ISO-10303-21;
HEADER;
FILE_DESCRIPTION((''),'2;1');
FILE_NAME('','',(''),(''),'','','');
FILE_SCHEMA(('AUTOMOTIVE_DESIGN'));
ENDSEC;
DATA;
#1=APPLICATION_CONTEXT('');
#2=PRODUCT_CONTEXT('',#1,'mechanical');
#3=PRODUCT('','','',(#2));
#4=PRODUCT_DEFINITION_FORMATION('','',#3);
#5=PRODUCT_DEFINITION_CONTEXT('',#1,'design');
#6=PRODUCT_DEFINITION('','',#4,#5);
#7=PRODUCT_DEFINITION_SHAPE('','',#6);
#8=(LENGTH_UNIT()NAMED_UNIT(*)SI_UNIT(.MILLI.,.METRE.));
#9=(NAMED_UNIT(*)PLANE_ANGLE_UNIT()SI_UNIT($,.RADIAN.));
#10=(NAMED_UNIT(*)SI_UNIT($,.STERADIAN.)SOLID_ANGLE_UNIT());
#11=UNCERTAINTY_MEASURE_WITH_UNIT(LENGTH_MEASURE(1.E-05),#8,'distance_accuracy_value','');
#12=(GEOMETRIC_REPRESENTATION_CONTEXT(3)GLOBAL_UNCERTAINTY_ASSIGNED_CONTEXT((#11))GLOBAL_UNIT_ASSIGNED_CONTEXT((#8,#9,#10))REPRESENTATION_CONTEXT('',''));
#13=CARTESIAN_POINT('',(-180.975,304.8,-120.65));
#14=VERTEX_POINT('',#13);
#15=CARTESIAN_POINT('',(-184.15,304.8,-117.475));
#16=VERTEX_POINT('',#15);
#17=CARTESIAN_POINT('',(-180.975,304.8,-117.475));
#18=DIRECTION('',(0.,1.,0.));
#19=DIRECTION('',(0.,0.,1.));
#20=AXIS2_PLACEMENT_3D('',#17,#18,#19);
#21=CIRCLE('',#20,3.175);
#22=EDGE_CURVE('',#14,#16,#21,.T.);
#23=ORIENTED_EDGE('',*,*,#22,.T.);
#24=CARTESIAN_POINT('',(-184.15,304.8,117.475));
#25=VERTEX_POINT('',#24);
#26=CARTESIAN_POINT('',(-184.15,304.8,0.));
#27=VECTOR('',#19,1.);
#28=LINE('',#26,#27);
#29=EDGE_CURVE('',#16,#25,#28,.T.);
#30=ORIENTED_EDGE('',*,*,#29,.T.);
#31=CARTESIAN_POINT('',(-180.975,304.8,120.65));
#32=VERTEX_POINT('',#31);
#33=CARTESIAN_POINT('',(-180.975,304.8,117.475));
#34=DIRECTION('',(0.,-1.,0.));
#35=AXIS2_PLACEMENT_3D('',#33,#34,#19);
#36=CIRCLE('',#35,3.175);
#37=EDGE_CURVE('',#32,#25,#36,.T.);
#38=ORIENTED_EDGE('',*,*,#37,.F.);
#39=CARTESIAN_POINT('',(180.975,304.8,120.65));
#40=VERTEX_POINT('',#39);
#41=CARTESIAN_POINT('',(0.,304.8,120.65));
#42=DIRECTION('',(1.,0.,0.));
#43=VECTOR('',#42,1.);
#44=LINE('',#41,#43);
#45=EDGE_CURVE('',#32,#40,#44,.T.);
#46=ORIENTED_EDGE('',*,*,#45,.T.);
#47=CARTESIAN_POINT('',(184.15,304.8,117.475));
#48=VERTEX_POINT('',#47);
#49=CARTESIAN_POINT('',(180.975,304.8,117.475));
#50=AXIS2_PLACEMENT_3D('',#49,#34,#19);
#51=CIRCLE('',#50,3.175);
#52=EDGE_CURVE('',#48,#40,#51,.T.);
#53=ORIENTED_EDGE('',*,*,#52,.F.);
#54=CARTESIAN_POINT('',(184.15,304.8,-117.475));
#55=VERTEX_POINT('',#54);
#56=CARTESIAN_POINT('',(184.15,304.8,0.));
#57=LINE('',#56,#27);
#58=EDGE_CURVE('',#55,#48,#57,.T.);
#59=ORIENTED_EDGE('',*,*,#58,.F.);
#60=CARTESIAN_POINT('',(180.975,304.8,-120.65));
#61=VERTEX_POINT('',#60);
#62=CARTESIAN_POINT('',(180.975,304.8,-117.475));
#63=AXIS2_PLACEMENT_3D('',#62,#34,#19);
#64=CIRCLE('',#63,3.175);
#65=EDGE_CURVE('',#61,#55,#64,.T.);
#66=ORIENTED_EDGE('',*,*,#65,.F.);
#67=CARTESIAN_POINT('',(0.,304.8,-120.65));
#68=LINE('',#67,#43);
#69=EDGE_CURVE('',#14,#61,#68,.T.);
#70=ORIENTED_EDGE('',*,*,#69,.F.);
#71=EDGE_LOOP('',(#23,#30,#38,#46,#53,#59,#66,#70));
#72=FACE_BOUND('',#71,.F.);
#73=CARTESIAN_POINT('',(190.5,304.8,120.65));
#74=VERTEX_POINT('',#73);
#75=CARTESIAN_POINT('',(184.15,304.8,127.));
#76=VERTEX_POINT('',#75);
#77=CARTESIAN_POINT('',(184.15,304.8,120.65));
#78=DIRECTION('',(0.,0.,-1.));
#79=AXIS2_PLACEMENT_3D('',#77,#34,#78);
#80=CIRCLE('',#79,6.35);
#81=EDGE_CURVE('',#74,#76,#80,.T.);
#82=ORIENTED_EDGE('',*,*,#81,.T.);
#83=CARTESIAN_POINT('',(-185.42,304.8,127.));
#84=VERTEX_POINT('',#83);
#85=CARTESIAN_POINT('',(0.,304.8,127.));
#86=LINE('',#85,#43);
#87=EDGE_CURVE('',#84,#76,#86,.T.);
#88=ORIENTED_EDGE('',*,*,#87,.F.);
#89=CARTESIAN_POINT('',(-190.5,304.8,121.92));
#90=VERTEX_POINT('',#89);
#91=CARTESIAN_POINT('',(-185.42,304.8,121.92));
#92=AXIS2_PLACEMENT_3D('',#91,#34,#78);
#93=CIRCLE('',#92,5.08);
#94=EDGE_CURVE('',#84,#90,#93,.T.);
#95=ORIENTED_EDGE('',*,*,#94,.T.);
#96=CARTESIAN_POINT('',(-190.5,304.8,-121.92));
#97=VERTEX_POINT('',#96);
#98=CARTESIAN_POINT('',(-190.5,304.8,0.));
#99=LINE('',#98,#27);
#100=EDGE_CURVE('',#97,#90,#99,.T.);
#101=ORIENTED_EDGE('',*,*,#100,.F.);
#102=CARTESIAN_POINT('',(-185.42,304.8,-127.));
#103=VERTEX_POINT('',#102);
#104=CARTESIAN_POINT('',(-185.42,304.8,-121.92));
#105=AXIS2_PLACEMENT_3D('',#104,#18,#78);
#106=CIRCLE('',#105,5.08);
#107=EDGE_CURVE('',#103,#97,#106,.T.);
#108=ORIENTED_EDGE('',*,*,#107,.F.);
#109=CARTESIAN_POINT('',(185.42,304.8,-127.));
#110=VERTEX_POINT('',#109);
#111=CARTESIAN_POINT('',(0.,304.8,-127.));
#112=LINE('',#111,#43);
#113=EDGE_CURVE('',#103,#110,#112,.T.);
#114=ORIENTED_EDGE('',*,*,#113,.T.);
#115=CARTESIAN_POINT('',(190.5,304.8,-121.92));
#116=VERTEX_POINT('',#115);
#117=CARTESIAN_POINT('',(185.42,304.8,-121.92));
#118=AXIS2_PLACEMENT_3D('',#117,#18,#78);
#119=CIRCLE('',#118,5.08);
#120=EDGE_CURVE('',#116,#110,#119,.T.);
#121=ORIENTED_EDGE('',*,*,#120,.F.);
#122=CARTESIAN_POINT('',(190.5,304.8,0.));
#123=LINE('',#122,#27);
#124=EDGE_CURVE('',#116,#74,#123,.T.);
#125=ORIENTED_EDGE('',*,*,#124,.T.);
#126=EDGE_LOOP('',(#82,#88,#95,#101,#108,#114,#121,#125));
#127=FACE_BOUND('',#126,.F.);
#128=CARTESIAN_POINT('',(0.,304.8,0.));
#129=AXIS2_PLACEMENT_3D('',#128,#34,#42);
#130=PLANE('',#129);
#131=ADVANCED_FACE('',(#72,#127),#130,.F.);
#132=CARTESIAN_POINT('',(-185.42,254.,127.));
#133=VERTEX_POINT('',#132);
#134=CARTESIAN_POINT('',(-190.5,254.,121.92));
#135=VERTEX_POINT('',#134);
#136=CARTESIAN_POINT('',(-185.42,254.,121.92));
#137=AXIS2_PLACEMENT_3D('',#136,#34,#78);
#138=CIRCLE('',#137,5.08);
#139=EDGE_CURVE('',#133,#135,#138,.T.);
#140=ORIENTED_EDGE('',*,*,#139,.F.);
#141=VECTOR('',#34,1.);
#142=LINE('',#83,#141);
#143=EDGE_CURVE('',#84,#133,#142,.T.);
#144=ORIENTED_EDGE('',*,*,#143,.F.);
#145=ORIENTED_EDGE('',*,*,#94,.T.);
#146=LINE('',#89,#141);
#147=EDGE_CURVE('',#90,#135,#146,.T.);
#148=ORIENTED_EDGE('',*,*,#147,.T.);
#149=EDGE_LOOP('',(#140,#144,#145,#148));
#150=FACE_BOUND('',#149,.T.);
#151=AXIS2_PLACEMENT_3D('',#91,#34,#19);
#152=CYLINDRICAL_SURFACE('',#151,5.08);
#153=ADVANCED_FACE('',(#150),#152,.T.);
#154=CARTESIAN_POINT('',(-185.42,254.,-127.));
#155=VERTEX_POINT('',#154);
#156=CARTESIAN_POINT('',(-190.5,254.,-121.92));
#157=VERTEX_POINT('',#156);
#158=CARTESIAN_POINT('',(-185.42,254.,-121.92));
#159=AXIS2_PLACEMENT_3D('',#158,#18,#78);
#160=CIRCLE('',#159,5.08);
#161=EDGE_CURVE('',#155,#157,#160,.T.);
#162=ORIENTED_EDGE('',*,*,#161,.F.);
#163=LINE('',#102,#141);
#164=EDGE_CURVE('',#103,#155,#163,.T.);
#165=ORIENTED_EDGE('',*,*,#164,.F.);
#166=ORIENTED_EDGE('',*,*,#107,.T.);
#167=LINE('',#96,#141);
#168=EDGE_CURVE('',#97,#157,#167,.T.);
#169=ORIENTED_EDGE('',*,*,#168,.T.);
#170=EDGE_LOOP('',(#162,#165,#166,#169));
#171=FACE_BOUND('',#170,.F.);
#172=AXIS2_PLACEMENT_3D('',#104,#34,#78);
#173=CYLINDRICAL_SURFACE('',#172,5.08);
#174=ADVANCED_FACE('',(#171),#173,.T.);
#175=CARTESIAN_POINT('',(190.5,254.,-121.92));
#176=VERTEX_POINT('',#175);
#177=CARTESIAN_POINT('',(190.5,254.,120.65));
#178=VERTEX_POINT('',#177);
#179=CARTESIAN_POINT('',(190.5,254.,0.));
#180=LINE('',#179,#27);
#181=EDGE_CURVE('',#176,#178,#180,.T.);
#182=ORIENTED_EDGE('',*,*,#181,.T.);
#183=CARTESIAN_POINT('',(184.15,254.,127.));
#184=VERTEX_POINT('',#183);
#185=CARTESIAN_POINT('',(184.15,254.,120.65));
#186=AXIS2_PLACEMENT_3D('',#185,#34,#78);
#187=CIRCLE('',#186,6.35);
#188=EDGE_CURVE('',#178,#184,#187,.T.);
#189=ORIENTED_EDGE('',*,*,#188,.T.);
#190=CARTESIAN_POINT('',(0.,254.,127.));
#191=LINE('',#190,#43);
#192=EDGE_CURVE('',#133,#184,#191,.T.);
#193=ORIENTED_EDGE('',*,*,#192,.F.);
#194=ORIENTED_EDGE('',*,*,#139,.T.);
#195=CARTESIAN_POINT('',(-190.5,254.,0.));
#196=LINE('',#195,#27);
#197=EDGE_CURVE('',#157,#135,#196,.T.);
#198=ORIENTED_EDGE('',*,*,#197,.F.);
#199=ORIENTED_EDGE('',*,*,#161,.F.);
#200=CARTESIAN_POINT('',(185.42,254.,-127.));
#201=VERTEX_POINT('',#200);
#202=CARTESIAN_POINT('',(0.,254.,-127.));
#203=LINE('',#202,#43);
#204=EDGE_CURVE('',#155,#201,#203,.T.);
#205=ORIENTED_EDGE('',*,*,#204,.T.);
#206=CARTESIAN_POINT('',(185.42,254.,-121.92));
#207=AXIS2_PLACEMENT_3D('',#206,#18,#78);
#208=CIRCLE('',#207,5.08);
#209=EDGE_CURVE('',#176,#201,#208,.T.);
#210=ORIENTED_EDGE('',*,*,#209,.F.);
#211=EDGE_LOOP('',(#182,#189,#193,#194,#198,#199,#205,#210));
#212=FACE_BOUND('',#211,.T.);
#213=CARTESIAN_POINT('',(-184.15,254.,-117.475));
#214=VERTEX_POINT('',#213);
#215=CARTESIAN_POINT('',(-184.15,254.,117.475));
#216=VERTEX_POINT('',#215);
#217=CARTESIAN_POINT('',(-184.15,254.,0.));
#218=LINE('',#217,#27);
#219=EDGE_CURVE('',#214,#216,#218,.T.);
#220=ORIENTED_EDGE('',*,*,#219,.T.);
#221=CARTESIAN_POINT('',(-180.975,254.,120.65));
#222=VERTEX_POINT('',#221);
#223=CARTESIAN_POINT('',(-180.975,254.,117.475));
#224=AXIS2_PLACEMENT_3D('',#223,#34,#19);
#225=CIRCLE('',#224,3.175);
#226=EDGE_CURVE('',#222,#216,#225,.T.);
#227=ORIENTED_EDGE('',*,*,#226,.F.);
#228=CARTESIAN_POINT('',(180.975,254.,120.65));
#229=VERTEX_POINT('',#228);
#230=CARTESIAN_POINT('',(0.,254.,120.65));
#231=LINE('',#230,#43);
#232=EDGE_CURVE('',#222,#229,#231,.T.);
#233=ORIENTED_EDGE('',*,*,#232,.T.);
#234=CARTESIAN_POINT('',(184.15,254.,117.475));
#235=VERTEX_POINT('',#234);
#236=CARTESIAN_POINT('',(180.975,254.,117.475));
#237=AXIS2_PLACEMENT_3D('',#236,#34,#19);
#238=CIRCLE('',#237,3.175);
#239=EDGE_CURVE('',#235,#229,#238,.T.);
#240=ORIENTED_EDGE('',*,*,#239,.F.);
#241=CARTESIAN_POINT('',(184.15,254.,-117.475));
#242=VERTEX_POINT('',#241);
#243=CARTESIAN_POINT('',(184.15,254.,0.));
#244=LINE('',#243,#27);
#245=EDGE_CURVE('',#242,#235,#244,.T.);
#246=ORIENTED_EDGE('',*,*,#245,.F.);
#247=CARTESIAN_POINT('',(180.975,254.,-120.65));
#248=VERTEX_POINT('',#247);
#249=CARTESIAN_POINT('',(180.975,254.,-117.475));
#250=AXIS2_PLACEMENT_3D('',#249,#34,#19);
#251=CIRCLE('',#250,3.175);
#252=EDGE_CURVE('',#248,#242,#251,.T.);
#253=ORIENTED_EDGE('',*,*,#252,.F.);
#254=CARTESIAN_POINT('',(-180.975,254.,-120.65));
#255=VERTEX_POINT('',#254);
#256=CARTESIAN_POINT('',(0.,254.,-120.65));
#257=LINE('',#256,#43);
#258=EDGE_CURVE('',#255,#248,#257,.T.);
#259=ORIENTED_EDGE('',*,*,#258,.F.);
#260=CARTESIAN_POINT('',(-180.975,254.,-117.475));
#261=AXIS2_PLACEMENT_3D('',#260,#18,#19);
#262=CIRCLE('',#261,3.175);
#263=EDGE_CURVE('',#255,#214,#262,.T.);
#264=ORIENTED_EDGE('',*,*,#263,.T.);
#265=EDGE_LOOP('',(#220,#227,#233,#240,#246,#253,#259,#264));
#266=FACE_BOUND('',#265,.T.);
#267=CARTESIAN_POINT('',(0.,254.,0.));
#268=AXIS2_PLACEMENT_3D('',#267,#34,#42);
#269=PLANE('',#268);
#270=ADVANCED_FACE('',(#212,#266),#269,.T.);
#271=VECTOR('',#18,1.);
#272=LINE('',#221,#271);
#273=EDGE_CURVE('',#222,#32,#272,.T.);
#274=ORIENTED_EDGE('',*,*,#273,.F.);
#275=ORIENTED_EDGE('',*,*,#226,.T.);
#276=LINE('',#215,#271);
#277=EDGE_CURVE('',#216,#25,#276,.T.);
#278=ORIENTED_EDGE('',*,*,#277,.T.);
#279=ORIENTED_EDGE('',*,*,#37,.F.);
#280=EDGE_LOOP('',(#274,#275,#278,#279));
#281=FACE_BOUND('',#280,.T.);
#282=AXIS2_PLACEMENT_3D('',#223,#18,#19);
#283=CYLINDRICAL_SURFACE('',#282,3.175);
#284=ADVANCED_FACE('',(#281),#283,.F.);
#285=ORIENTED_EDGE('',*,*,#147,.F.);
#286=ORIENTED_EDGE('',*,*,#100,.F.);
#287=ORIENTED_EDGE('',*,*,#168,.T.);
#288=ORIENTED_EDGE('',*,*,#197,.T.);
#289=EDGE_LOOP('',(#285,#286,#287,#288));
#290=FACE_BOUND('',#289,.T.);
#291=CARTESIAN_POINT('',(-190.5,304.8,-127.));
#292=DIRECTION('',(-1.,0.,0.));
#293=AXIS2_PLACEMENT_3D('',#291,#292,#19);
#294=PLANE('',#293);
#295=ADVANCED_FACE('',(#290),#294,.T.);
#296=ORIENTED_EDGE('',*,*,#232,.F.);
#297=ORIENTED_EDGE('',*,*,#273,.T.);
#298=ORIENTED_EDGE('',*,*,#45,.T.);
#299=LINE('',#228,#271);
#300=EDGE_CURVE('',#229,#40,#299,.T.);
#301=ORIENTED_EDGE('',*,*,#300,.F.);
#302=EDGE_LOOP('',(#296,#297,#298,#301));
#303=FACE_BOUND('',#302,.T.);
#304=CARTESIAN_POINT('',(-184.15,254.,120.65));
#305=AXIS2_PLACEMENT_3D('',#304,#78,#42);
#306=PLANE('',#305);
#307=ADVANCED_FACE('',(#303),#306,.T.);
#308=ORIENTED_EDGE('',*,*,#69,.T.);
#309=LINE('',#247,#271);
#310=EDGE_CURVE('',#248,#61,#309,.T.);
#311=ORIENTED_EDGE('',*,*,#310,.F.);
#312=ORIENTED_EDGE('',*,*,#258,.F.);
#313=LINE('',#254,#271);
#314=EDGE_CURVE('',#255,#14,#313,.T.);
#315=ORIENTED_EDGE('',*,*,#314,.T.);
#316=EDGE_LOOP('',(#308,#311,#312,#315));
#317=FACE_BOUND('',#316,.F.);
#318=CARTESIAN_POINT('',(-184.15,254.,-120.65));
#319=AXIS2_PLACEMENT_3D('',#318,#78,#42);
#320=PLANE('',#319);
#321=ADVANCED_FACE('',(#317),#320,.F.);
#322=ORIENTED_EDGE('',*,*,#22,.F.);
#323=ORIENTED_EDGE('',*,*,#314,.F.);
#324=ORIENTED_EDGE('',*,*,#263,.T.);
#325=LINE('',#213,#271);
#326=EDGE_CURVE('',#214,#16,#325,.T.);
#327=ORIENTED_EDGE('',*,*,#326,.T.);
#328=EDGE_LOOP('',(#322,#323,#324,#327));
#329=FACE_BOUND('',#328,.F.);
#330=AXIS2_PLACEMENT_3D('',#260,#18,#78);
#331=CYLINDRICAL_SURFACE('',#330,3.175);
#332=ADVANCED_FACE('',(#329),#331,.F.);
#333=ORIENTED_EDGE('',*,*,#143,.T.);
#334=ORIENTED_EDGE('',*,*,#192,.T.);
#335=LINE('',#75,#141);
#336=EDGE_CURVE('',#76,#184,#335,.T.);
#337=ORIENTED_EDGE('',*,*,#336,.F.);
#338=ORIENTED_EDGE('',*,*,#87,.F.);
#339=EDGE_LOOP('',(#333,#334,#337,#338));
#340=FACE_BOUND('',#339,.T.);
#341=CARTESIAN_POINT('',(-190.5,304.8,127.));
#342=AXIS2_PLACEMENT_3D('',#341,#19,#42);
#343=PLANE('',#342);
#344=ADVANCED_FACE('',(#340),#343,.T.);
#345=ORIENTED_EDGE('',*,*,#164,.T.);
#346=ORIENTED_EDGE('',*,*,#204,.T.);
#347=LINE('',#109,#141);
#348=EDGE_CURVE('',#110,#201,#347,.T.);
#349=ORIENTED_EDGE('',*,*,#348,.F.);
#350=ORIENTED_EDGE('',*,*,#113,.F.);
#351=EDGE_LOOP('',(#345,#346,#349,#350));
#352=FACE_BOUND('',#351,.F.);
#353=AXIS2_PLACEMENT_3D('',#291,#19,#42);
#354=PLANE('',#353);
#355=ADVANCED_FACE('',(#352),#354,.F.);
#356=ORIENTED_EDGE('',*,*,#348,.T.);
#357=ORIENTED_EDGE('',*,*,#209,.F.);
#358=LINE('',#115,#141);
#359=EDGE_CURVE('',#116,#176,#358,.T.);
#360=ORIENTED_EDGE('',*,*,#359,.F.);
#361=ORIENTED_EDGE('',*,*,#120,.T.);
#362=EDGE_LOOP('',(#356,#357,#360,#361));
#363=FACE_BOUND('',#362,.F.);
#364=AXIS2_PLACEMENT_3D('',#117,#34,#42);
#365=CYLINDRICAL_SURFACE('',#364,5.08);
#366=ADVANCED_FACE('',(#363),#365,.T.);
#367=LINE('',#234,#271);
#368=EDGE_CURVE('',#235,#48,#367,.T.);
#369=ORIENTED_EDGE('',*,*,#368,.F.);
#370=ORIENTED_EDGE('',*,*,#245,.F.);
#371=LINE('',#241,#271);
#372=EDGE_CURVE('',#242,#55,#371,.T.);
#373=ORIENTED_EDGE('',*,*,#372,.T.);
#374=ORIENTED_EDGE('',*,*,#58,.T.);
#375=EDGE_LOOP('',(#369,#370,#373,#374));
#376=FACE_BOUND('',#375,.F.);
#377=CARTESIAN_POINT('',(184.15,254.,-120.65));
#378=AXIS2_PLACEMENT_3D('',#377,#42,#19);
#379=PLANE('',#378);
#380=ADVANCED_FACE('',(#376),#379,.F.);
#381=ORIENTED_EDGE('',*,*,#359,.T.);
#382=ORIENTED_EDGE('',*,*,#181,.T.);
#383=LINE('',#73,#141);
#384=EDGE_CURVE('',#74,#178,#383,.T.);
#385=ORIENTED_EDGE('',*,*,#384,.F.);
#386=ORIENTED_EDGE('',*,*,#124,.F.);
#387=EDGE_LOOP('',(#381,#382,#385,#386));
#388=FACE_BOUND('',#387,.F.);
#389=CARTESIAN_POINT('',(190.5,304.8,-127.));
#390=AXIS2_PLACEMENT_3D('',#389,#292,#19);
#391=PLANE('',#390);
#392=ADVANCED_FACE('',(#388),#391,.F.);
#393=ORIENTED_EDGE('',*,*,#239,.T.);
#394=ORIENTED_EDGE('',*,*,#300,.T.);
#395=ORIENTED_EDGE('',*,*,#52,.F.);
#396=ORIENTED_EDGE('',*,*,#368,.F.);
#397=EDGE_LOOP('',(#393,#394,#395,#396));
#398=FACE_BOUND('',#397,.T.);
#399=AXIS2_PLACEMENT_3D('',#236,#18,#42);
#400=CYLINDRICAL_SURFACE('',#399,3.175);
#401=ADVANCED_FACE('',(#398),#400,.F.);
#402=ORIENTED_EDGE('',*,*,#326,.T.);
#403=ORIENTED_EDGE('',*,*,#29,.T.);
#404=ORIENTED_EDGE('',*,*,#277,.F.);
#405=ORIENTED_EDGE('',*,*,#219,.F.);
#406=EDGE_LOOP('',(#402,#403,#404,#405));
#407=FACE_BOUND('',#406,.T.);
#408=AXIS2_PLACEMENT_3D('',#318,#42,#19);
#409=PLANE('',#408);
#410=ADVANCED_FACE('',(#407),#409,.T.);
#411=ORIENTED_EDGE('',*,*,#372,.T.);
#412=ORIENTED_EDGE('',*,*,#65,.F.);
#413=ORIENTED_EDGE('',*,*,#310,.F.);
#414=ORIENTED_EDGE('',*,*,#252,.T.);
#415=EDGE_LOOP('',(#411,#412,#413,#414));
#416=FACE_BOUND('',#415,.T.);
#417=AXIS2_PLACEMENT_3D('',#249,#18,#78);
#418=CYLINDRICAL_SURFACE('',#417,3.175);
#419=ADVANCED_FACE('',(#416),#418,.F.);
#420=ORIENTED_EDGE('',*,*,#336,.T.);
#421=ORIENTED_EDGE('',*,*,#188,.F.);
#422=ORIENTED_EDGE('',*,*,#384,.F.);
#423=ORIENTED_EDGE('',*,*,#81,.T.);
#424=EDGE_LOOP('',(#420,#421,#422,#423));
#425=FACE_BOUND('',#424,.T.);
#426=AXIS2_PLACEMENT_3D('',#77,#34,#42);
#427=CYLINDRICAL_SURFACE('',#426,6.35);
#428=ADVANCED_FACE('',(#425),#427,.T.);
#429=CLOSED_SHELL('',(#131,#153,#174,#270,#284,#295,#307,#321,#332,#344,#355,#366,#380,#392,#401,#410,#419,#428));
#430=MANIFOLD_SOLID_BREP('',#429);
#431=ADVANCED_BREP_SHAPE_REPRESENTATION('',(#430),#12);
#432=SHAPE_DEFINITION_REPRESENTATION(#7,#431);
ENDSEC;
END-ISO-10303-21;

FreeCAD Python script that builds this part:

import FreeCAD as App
import Part
import Sketcher
Q = App.Units.Quantity


def edges_at(feature, points):
    """Names of the edges that pass closest to the given points."""
    edges = feature.Shape.Edges
    near = lambda p: min(range(len(edges)), key=lambda i: edges[i].distToShape(Part.Vertex(*p))[0])
    return sorted({f"Edge{near(p) + 1}" for p in points})


def add_polygon(sketch, points):
    """Adds a closed chain of lines whose ends are joined by coincident constraints."""
    first, n = sketch.GeometryCount, len(points)
    for a, b in zip(points, points[1:] + points[:1]):
        sketch.addGeometry(Part.LineSegment(App.Vector(*a, 0), App.Vector(*b, 0)), False)
    for i in range(n):
        sketch.addConstraint(Sketcher.Constraint("Coincident", first + i, 2, first + (i + 1) % n, 1))

doc = App.newDocument("Part")
params = doc.addObject("Spreadsheet::Sheet", "Params")
for row, (alias, value) in enumerate([
    ("sketch1_width", "15 in"),
    ("sketch1_height", "10 in"),
    ("pad1_length", "2 in"),
    ("fillet_radius", "0.25 in"),
    ("fillet2_radius", "0.2 in"),
    ("sketch2_width", "14.5 in"),
    ("sketch2_height", "9.5 in"),
    ("pocket1_length", "2 in"),
    ("fillet3_radius", "0.125 in"),
], start=1):
    params.set(f"A{row}", alias)
    params.set(f"B{row}", "=" + value)
    params.setAlias(f"B{row}", alias)

body = doc.addObject("PartDesign::Body", "Body")

# Sketch on XZ plane
sketch1 = body.newObject("Sketcher::SketchObject", "Sketch")
sketch1.AttachmentSupport = (doc.getObject("XZ_Plane"), [""])
sketch1.MapMode = "FlatFace"
add_polygon(sketch1, [(-190, 127), (-190, -127), (190, -127), (190, 127)])  # lines 0-3
sketch1.addConstraint([
    Sketcher.Constraint("Vertical", 0),
    Sketcher.Constraint("Horizontal", 1),
    Sketcher.Constraint("Vertical", 2),
    Sketcher.Constraint("Horizontal", 3),
    Sketcher.Constraint("Symmetric", 0, 2, 2, 2, -1, 1),
    Sketcher.Constraint("DistanceX", 1, 1, 1, 2, Q("15 in")),
    Sketcher.Constraint("DistanceY", 0, 2, 0, 1, Q("10 in")),
])
sketch1.setExpression("Constraints[9]", "Params.sketch1_width")
sketch1.setExpression("Constraints[10]", "Params.sketch1_height")
pad1 = body.newObject("PartDesign::Pad", "Pad")
pad1.Profile = sketch1
pad1.setExpression("Length", "Params.pad1_length")
doc.recompute()

fillet = body.newObject("PartDesign::Fillet", "Fillet")
fillet.Base = (pad1, edges_at(pad1, [(190.5, -25.4, 127)]))
fillet.setExpression("Radius", "Params.fillet_radius")
doc.recompute()

fillet2 = body.newObject("PartDesign::Fillet", "Fillet001")
fillet2.Base = (fillet, edges_at(fillet, [(190.5, -25.4, -127), (-190.5, -25.4, 127), (-190.5, -25.4, -127)]))
fillet2.setExpression("Radius", "Params.fillet2_radius")
body2 = doc.addObject("PartDesign::Body", "Body001")
doc.recompute()

body.Placement = App.Placement(App.Vector(0, 50.8, 0), App.Rotation(App.Vector(0, 0, 1), 0))
boolean = body2.newObject("PartDesign::Boolean", "Boolean")
boolean.Type = "Fuse"
boolean.addObjects([body])

# Sketch on XZ plane
sketch2 = body2.newObject("Sketcher::SketchObject", "Sketch001")
sketch2.AttachmentSupport = (doc.getObject("XZ_Plane001"), [""])
sketch2.MapMode = "FlatFace"
add_polygon(sketch2, [(-184, 121), (-184, -121), (184, -121), (184, 121)])  # lines 0-3
sketch2.addConstraint([
    Sketcher.Constraint("Vertical", 0),
    Sketcher.Constraint("Horizontal", 1),
    Sketcher.Constraint("Vertical", 2),
    Sketcher.Constraint("Horizontal", 3),
    Sketcher.Constraint("Symmetric", 0, 2, 2, 2, -1, 1),
    Sketcher.Constraint("DistanceX", 1, 1, 1, 2, Q("14.5 in")),
    Sketcher.Constraint("DistanceY", 0, 2, 0, 1, Q("9.5 in")),
])
sketch2.setExpression("Constraints[9]", "Params.sketch2_width")
sketch2.setExpression("Constraints[10]", "Params.sketch2_height")
pocket1 = body2.newObject("PartDesign::Pocket", "Pocket")
pocket1.Profile = sketch2
pocket1.setExpression("Length", "Params.pocket1_length")
doc.recompute()

fillet3 = body2.newObject("PartDesign::Fillet", "Fillet002")
fillet3.Base = (pocket1, edges_at(pocket1, [
    (-184.15, 25.4, -120.65),
    (-184.15, 25.4, 120.65),
    (184.15, 25.4, -120.65),
    (184.15, 25.4, 120.65),
]))
fillet3.setExpression("Radius", "Params.fillet3_radius")
body3 = doc.addObject("PartDesign::Body", "Body002")
doc.recompute()

body2.Placement = App.Placement(App.Vector(0, 50.8, 0), App.Rotation(App.Vector(0, 0, 1), 0))
boolean2 = body3.newObject("PartDesign::Boolean", "Boolean001")
boolean2.Type = "Fuse"
boolean2.addObjects([body2])
body4 = doc.addObject("PartDesign::Body", "Body003")
doc.recompute()

body3.Placement = App.Placement(App.Vector(0, 203.2, 0), App.Rotation(App.Vector(0, 0, 1), 0))
boolean3 = body4.newObject("PartDesign::Boolean", "Boolean002")
boolean3.Type = "Fuse"
boolean3.addObjects([body3])

doc.recompute()
